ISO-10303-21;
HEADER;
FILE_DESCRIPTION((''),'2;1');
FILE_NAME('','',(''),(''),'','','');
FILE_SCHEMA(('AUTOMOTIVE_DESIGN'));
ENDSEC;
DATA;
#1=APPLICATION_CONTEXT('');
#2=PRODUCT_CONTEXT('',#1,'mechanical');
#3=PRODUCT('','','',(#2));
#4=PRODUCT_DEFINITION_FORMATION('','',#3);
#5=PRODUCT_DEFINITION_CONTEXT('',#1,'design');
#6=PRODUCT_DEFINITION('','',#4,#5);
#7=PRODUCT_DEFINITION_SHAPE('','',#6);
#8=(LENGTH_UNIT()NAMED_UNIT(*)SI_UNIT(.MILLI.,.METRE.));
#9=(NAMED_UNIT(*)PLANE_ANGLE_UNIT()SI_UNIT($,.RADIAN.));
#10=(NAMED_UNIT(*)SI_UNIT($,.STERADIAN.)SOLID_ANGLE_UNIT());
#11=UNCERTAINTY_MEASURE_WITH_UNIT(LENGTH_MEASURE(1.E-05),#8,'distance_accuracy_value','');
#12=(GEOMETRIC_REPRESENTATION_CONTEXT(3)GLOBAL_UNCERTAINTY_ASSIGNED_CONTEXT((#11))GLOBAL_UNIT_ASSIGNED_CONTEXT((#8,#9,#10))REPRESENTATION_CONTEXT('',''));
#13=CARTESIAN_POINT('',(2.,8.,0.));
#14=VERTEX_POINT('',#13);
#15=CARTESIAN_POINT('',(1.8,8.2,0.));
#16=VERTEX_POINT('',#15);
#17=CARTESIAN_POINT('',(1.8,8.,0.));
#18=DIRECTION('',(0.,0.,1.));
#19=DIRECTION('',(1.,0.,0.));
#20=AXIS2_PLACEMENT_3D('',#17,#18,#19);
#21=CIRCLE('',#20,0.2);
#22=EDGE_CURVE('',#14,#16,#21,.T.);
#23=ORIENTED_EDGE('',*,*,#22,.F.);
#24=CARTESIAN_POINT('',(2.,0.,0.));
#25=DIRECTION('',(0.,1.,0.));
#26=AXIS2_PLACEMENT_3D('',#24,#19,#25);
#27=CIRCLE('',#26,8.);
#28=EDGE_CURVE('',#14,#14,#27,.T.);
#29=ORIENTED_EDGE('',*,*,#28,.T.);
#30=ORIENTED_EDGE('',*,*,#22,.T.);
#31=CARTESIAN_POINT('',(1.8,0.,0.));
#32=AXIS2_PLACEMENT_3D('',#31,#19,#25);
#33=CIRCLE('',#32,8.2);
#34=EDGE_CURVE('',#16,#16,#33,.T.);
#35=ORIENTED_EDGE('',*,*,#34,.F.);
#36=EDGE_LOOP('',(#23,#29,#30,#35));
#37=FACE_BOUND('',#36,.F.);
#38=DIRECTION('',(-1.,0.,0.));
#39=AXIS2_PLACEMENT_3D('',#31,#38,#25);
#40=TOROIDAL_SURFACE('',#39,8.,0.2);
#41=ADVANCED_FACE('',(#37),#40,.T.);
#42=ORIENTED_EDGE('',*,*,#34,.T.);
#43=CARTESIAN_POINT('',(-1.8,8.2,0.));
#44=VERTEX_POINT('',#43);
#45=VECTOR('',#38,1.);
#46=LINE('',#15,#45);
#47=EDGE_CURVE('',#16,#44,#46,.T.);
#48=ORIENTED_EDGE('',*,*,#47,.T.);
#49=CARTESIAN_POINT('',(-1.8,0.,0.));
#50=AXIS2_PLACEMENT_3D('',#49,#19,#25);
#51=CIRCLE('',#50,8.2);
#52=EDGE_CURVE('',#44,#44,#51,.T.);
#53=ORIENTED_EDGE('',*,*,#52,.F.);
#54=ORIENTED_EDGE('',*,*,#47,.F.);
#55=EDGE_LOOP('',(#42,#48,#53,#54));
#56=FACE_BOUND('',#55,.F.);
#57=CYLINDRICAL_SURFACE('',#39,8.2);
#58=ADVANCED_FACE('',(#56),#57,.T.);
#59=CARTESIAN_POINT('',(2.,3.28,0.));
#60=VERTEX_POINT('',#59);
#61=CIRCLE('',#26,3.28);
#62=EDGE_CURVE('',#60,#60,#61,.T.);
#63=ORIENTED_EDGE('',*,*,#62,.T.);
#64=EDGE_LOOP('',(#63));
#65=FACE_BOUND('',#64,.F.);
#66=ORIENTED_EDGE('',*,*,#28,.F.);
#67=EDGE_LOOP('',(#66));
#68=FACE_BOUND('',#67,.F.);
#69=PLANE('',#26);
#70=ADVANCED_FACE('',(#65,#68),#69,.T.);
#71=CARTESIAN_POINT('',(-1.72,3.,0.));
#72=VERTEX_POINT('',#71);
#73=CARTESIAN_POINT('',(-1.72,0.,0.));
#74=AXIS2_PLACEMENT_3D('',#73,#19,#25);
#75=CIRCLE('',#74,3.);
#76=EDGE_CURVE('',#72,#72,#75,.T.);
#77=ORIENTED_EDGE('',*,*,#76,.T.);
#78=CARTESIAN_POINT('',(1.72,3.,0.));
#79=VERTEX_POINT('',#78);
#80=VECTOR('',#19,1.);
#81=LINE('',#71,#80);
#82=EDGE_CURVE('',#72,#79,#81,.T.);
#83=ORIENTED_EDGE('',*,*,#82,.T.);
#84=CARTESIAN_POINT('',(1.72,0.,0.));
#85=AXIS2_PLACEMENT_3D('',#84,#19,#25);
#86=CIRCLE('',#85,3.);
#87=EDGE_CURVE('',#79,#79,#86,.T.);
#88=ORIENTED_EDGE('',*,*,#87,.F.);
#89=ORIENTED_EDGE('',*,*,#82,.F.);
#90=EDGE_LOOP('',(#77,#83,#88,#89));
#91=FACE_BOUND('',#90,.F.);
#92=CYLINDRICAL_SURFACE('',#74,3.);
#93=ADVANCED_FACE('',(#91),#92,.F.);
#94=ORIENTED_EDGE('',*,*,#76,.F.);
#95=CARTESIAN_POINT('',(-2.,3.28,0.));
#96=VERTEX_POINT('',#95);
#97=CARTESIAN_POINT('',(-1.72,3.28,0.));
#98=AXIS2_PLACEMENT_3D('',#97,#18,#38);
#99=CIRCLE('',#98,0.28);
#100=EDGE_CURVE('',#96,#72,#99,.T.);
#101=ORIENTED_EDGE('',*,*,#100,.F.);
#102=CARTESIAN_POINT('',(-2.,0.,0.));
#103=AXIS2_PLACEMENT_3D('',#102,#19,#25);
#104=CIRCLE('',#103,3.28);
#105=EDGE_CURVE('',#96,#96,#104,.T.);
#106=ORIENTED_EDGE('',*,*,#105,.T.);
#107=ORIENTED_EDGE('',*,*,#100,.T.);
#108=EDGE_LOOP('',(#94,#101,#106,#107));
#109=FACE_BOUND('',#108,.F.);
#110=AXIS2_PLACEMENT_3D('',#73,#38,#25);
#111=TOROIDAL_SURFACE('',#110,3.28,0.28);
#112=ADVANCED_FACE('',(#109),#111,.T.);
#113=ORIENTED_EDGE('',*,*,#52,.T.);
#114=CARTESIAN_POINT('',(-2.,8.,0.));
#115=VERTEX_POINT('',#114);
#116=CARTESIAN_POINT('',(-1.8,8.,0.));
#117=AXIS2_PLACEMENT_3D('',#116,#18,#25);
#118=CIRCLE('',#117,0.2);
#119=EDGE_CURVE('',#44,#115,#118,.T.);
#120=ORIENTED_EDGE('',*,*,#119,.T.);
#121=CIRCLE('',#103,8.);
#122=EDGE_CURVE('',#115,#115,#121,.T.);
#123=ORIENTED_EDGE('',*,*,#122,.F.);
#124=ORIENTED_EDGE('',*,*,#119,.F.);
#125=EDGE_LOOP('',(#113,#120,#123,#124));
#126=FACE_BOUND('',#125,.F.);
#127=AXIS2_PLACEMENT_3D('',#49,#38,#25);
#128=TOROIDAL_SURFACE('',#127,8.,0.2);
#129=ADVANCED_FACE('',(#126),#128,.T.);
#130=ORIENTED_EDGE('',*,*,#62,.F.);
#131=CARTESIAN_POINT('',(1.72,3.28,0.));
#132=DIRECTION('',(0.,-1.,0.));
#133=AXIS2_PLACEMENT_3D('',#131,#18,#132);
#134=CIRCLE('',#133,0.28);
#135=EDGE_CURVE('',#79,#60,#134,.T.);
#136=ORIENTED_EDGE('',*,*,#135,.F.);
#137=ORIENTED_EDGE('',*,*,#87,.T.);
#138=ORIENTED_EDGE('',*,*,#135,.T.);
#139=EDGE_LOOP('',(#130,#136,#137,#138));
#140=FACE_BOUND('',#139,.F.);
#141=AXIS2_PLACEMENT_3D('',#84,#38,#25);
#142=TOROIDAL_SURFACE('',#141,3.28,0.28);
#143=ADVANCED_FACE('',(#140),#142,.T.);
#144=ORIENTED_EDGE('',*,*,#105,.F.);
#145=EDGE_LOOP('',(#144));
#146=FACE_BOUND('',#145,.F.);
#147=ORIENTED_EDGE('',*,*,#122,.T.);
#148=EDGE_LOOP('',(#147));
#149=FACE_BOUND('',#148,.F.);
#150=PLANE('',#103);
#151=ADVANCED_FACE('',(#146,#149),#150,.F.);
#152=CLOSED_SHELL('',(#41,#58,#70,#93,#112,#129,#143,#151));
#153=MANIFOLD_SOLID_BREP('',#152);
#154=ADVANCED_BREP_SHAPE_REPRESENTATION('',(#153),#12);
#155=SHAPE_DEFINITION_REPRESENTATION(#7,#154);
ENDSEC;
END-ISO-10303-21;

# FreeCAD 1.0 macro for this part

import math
import FreeCAD as App
import Part
import Sketcher

doc = App.newDocument("Part")
body = doc.addObject("PartDesign::Body", "Body")

sketch1 = body.newObject("Sketcher::SketchObject", "Sketch")
sketch1.AttachmentSupport = (doc.getObject("XY_Plane"), [""])
sketch1.MapMode = "FlatFace"
sketch1.addGeometry([
    Part.LineSegment(App.Vector(-2, 8, 0), App.Vector(-2, 3.28, 0)),
    Part.ArcOfCircle(Part.Circle(App.Vector(-1.72, 3.28, 0), App.Vector(0, 0, 1), 0.28), math.radians(180), math.radians(270)),
    Part.LineSegment(App.Vector(-1.72, 3, 0), App.Vector(1.72, 3, 0)),
    Part.ArcOfCircle(Part.Circle(App.Vector(1.72, 3.28, 0), App.Vector(0, 0, 1), 0.28), math.radians(-90), math.radians(0)),
    Part.LineSegment(App.Vector(2, 3.28, 0), App.Vector(2, 8, 0)),
    Part.ArcOfCircle(Part.Circle(App.Vector(1.8, 8, 0), App.Vector(0, 0, 1), 0.2), math.radians(0), math.radians(90)),
    Part.LineSegment(App.Vector(1.8, 8.2, 0), App.Vector(-1.8, 8.2, 0)),
    Part.ArcOfCircle(Part.Circle(App.Vector(-1.8, 8, 0), App.Vector(0, 0, 1), 0.2), math.radians(90), math.radians(180)),
], False)
sketch1.addConstraint([
    Sketcher.Constraint("Tangent", 0, 2, 1, 1),
    Sketcher.Constraint("Tangent", 1, 2, 2, 1),
    Sketcher.Constraint("Tangent", 2, 2, 3, 1),
    Sketcher.Constraint("Tangent", 3, 2, 4, 1),
    Sketcher.Constraint("Tangent", 4, 2, 5, 1),
    Sketcher.Constraint("Tangent", 5, 2, 6, 1),
    Sketcher.Constraint("Tangent", 6, 2, 7, 1),
    Sketcher.Constraint("Tangent", 7, 2, 0, 1),
    Sketcher.Constraint("Vertical", 0),
    Sketcher.Constraint("Horizontal", 2),
    Sketcher.Constraint("Vertical", 4),
    Sketcher.Constraint("Horizontal", 6),
    Sketcher.Constraint("Equal", 1, 3),
    Sketcher.Constraint("Equal", 5, 7),
    Sketcher.Constraint("Radius", 5, 0.2),
    Sketcher.Constraint("Radius", 1, 0.28),
    Sketcher.Constraint("DistanceX", 6, 2, 6, 1, 3.6),
    Sketcher.Constraint("DistanceY", -1, 1, 5, 3, 8.0),
    Sketcher.Constraint("DistanceX", 0, 2, -1, 1, 2.0),
    Sketcher.Constraint("DistanceY", -1, 1, 1, 2, 3.0),
])
revolution = body.newObject("PartDesign::Revolution", "Revolution")
revolution.Profile = sketch1
revolution.ReferenceAxis = (sketch1, ["H_Axis"])
revolution.Angle = 360

doc.recompute()
